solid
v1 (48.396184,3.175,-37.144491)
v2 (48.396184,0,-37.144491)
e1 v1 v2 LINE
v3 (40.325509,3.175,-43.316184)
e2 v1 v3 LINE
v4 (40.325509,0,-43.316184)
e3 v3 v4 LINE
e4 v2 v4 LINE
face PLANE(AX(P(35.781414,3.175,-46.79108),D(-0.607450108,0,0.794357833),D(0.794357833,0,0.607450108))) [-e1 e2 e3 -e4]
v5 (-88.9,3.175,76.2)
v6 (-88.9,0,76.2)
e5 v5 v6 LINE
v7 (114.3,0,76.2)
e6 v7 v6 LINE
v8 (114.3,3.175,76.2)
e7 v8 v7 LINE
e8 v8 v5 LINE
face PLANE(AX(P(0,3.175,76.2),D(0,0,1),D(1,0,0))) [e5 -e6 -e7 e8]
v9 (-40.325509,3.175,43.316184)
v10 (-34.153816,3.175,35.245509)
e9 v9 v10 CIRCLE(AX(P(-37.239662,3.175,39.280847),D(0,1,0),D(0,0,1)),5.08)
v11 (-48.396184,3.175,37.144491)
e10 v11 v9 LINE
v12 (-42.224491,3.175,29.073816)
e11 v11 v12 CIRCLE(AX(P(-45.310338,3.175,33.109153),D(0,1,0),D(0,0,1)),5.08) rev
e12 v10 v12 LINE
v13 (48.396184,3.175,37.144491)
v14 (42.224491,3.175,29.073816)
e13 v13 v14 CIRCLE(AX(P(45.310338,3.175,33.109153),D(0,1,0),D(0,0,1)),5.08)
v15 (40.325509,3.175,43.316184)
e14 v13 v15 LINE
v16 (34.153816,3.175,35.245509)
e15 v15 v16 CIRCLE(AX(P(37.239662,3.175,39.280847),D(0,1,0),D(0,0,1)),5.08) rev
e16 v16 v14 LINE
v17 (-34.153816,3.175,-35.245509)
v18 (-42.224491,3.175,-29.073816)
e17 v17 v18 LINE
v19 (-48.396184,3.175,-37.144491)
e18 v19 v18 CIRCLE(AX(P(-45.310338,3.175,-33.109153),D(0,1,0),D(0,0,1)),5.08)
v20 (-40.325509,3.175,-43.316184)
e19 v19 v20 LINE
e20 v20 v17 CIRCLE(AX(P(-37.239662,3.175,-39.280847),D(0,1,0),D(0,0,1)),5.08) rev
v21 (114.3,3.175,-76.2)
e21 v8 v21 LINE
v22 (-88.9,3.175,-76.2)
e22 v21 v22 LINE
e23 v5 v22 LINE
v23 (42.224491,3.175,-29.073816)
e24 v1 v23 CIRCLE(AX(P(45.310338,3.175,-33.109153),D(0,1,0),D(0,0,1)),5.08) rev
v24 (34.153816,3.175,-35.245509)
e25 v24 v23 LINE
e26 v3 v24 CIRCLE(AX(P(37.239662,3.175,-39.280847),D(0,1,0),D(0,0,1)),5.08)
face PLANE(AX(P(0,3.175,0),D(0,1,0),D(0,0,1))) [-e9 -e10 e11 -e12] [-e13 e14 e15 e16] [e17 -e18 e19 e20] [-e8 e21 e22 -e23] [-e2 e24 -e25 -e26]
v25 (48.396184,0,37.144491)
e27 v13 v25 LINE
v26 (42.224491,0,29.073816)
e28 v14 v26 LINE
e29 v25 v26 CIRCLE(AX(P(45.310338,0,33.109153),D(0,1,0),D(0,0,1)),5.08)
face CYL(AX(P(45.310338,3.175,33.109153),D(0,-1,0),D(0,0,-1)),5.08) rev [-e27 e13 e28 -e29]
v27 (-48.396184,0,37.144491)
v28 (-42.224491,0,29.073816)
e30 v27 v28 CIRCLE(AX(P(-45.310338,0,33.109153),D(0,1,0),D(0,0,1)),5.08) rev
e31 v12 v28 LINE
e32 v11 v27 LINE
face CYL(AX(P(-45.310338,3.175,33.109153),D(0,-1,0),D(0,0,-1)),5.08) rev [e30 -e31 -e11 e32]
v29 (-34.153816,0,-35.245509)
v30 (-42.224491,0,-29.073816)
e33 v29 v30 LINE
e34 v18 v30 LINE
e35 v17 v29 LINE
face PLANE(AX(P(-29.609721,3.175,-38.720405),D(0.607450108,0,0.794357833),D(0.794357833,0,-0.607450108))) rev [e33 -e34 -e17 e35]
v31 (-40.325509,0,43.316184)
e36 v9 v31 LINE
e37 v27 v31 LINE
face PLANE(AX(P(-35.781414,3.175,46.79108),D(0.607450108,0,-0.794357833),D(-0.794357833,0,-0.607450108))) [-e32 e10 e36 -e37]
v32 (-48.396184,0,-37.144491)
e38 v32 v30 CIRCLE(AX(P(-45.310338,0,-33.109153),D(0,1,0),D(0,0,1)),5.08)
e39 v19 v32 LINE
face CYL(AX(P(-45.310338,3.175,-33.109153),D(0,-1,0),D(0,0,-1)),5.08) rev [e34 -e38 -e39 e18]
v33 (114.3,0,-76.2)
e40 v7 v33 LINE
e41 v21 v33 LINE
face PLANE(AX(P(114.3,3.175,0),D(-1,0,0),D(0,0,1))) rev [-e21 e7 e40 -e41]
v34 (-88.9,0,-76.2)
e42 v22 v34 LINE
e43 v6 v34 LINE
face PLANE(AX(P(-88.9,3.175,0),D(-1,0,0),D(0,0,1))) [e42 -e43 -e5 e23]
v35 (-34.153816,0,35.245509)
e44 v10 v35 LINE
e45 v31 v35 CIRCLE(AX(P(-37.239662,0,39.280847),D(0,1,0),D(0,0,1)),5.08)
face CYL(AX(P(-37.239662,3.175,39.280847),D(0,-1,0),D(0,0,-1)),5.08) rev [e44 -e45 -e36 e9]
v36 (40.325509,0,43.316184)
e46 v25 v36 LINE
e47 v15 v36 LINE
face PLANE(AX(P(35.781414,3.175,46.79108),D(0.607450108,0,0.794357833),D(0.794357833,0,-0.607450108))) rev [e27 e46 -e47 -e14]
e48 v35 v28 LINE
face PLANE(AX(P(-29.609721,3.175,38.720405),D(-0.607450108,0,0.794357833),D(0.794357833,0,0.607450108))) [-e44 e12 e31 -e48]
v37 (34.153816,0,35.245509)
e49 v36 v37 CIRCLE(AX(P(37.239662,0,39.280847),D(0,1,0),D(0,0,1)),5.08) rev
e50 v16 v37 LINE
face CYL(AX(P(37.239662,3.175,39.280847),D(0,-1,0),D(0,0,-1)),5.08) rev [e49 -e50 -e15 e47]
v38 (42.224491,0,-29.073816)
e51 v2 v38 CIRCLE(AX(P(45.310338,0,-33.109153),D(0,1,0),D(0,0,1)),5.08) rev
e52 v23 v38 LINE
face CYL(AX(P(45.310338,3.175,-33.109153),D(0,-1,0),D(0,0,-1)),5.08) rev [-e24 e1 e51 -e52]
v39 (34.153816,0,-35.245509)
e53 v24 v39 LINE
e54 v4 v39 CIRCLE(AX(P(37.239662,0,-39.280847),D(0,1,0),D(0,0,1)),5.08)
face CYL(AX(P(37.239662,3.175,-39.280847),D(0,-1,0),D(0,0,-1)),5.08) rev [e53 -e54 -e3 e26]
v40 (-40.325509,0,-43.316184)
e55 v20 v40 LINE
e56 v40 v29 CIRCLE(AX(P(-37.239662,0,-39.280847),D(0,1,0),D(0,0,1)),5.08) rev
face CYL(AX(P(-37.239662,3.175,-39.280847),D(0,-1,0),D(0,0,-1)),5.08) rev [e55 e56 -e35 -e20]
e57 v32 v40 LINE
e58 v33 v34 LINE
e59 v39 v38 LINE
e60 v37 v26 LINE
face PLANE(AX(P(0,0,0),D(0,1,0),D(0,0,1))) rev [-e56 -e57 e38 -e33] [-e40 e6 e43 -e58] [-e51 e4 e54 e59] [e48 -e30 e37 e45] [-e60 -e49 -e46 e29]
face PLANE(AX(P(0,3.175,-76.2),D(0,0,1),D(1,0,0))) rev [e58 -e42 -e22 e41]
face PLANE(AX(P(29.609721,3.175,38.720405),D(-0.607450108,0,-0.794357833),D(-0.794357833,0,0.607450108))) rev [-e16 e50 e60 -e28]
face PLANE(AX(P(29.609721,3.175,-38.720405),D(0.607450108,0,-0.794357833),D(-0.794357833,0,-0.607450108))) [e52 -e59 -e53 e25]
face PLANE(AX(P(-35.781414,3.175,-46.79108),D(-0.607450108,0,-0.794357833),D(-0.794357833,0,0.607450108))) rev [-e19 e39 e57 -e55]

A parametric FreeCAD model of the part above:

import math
import FreeCAD as App
import Part
import Sketcher
Q = App.Units.Quantity

doc = App.newDocument("Part")
body = doc.addObject("PartDesign::Body", "Body")

sketch1 = body.newObject("Sketcher::SketchObject", "Sketch")
sketch1.AttachmentSupport = (doc.getObject("XZ_Plane"), [""])
sketch1.MapMode = "FlatFace"
sketch1.addGeometry(Part.LineSegment(App.Vector(-89, -76, 0), App.Vector(-89, 76, 0)), False)
sketch1.addGeometry(Part.LineSegment(App.Vector(-89, 76, 0), App.Vector(114, 76, 0)), False)
sketch1.addGeometry(Part.LineSegment(App.Vector(114, 76, 0), App.Vector(114, -76, 0)), False)
sketch1.addGeometry(Part.LineSegment(App.Vector(114, -76, 0), App.Vector(-89, -76, 0)), False)
sketch1.addGeometry(Part.LineSegment(App.Vector(-40, 43, 0), App.Vector(-48, 37, 0)), False)
sketch1.addGeometry(Part.ArcOfCircle(Part.Circle(App.Vector(-45, 33, 0), App.Vector(0, 0, 1), 5), math.radians(127), math.radians(307)), False)
sketch1.addGeometry(Part.LineSegment(App.Vector(-42, 29, 0), App.Vector(-34, 35, 0)), False)
sketch1.addGeometry(Part.ArcOfCircle(Part.Circle(App.Vector(-37, 39, 0), App.Vector(0, 0, 1), 5), math.radians(-53), math.radians(127)), False)
sketch1.addGeometry(Part.ArcOfCircle(Part.Circle(App.Vector(37, 39, 0), App.Vector(0, 0, 1), 5), math.radians(53), math.radians(233)), False)
sketch1.addGeometry(Part.LineSegment(App.Vector(34, 35, 0), App.Vector(42, 29, 0)), False)
sketch1.addGeometry(Part.ArcOfCircle(Part.Circle(App.Vector(45, 33, 0), App.Vector(0, 0, 1), 5), math.radians(-127), math.radians(53)), False)
sketch1.addGeometry(Part.LineSegment(App.Vector(48, 37, 0), App.Vector(40, 43, 0)), False)
sketch1.addGeometry(Part.ArcOfCircle(Part.Circle(App.Vector(-45, -33, 0), App.Vector(0, 0, 1), 5), math.radians(53), math.radians(233)), False)
sketch1.addGeometry(Part.LineSegment(App.Vector(-48, -37, 0), App.Vector(-40, -43, 0)), False)
sketch1.addGeometry(Part.ArcOfCircle(Part.Circle(App.Vector(-37, -39, 0), App.Vector(0, 0, 1), 5), math.radians(-127), math.radians(53)), False)
sketch1.addGeometry(Part.LineSegment(App.Vector(-34, -35, 0), App.Vector(-42, -29, 0)), False)
sketch1.addGeometry(Part.LineSegment(App.Vector(42, -29, 0), App.Vector(34, -35, 0)), False)
sketch1.addGeometry(Part.ArcOfCircle(Part.Circle(App.Vector(37, -39, 0), App.Vector(0, 0, 1), 5), math.radians(127), math.radians(307)), False)
sketch1.addGeometry(Part.LineSegment(App.Vector(40, -43, 0), App.Vector(48, -37, 0)), False)
sketch1.addGeometry(Part.ArcOfCircle(Part.Circle(App.Vector(45, -33, 0), App.Vector(0, 0, 1), 5), math.radians(-53), math.radians(127)), False)
sketch1.addConstraint(Sketcher.Constraint("Coincident", 0, 2, 1, 1))
sketch1.addConstraint(Sketcher.Constraint("Coincident", 1, 2, 2, 1))
sketch1.addConstraint(Sketcher.Constraint("Coincident", 2, 2, 3, 1))
sketch1.addConstraint(Sketcher.Constraint("Coincident", 3, 2, 0, 1))
sketch1.addConstraint(Sketcher.Constraint("Tangent", 4, 2, 5, 1))
sketch1.addConstraint(Sketcher.Constraint("Tangent", 5, 2, 6, 1))
sketch1.addConstraint(Sketcher.Constraint("Tangent", 6, 2, 7, 1))
sketch1.addConstraint(Sketcher.Constraint("Tangent", 7, 2, 4, 1))
sketch1.addConstraint(Sketcher.Constraint("Tangent", 8, 2, 9, 1))
sketch1.addConstraint(Sketcher.Constraint("Tangent", 9, 2, 10, 1))
sketch1.addConstraint(Sketcher.Constraint("Tangent", 10, 2, 11, 1))
sketch1.addConstraint(Sketcher.Constraint("Tangent", 11, 2, 8, 1))
sketch1.addConstraint(Sketcher.Constraint("Tangent", 12, 2, 13, 1))
sketch1.addConstraint(Sketcher.Constraint("Tangent", 13, 2, 14, 1))
sketch1.addConstraint(Sketcher.Constraint("Tangent", 14, 2, 15, 1))
sketch1.addConstraint(Sketcher.Constraint("Tangent", 15, 2, 12, 1))
sketch1.addConstraint(Sketcher.Constraint("Tangent", 16, 2, 17, 1))
sketch1.addConstraint(Sketcher.Constraint("Tangent", 17, 2, 18, 1))
sketch1.addConstraint(Sketcher.Constraint("Tangent", 18, 2, 19, 1))
sketch1.addConstraint(Sketcher.Constraint("Tangent", 19, 2, 16, 1))
sketch1.addConstraint(Sketcher.Constraint("Vertical", 0))
sketch1.addConstraint(Sketcher.Constraint("Horizontal", 1))
sketch1.addConstraint(Sketcher.Constraint("Vertical", 2))
sketch1.addConstraint(Sketcher.Constraint("Horizontal", 3))
sketch1.addConstraint(Sketcher.Constraint("Equal", 5, 7))
sketch1.addConstraint(Sketcher.Constraint("Equal", 7, 8))
sketch1.addConstraint(Sketcher.Constraint("Equal", 8, 10))
sketch1.addConstraint(Sketcher.Constraint("Equal", 10, 12))
sketch1.addConstraint(Sketcher.Constraint("Equal", 12, 14))
sketch1.addConstraint(Sketcher.Constraint("Equal", 14, 17))
sketch1.addConstraint(Sketcher.Constraint("Equal", 17, 19))
sketch1.addConstraint(Sketcher.Constraint("Symmetric", 10, 3, 12, 3, -1, 1))
sketch1.addConstraint(Sketcher.Constraint("Symmetric", 8, 3, 14, 3, -1, 1))
sketch1.addConstraint(Sketcher.Constraint("Symmetric", 7, 3, 17, 3, -1, 1))
sketch1.addConstraint(Sketcher.Constraint("Symmetric", 5, 3, 19, 3, -1, 1))
sketch1.addConstraint(Sketcher.Constraint("Symmetric", 7, 3, 8, 3, -2))
sketch1.addConstraint(Sketcher.Constraint("Symmetric", 5, 3, 10, 3, -2))
sketch1.addConstraint(Sketcher.Constraint("Radius", 5, Q("0.2 in")))
sketch1.addConstraint(Sketcher.Constraint("DistanceX", 1, 1, 1, 2, Q("8 in")))
sketch1.addConstraint(Sketcher.Constraint("DistanceY", 0, 1, 0, 2, Q("6 in")))
sketch1.addConstraint(Sketcher.Constraint("DistanceY", -1, 1, 0, 2, Q("3 in")))
sketch1.addConstraint(Sketcher.Constraint("Distance", 4, Q("0.4 in")))
sketch1.addConstraint(Sketcher.Constraint("DistanceX", 0, 2, -1, 1, Q("3.5 in")))
sketch1.addConstraint(Sketcher.Constraint("DistanceX", 5, 3, 8, 3, Q("3.25 in")))
sketch1.addConstraint(Sketcher.Constraint("DistanceY", 12, 3, 7, 3, Q("2.85 in")))
sketch1.addConstraint(Sketcher.Constraint("DistanceY", -1, 1, 4, 2, Q("37.144491 mm")))
pad1 = body.newObject("PartDesign::Pad", "Pad")
pad1.Profile = sketch1
pad1.Length = Q("0.125 in")
pad1.Reversed = True

doc.recompute()
